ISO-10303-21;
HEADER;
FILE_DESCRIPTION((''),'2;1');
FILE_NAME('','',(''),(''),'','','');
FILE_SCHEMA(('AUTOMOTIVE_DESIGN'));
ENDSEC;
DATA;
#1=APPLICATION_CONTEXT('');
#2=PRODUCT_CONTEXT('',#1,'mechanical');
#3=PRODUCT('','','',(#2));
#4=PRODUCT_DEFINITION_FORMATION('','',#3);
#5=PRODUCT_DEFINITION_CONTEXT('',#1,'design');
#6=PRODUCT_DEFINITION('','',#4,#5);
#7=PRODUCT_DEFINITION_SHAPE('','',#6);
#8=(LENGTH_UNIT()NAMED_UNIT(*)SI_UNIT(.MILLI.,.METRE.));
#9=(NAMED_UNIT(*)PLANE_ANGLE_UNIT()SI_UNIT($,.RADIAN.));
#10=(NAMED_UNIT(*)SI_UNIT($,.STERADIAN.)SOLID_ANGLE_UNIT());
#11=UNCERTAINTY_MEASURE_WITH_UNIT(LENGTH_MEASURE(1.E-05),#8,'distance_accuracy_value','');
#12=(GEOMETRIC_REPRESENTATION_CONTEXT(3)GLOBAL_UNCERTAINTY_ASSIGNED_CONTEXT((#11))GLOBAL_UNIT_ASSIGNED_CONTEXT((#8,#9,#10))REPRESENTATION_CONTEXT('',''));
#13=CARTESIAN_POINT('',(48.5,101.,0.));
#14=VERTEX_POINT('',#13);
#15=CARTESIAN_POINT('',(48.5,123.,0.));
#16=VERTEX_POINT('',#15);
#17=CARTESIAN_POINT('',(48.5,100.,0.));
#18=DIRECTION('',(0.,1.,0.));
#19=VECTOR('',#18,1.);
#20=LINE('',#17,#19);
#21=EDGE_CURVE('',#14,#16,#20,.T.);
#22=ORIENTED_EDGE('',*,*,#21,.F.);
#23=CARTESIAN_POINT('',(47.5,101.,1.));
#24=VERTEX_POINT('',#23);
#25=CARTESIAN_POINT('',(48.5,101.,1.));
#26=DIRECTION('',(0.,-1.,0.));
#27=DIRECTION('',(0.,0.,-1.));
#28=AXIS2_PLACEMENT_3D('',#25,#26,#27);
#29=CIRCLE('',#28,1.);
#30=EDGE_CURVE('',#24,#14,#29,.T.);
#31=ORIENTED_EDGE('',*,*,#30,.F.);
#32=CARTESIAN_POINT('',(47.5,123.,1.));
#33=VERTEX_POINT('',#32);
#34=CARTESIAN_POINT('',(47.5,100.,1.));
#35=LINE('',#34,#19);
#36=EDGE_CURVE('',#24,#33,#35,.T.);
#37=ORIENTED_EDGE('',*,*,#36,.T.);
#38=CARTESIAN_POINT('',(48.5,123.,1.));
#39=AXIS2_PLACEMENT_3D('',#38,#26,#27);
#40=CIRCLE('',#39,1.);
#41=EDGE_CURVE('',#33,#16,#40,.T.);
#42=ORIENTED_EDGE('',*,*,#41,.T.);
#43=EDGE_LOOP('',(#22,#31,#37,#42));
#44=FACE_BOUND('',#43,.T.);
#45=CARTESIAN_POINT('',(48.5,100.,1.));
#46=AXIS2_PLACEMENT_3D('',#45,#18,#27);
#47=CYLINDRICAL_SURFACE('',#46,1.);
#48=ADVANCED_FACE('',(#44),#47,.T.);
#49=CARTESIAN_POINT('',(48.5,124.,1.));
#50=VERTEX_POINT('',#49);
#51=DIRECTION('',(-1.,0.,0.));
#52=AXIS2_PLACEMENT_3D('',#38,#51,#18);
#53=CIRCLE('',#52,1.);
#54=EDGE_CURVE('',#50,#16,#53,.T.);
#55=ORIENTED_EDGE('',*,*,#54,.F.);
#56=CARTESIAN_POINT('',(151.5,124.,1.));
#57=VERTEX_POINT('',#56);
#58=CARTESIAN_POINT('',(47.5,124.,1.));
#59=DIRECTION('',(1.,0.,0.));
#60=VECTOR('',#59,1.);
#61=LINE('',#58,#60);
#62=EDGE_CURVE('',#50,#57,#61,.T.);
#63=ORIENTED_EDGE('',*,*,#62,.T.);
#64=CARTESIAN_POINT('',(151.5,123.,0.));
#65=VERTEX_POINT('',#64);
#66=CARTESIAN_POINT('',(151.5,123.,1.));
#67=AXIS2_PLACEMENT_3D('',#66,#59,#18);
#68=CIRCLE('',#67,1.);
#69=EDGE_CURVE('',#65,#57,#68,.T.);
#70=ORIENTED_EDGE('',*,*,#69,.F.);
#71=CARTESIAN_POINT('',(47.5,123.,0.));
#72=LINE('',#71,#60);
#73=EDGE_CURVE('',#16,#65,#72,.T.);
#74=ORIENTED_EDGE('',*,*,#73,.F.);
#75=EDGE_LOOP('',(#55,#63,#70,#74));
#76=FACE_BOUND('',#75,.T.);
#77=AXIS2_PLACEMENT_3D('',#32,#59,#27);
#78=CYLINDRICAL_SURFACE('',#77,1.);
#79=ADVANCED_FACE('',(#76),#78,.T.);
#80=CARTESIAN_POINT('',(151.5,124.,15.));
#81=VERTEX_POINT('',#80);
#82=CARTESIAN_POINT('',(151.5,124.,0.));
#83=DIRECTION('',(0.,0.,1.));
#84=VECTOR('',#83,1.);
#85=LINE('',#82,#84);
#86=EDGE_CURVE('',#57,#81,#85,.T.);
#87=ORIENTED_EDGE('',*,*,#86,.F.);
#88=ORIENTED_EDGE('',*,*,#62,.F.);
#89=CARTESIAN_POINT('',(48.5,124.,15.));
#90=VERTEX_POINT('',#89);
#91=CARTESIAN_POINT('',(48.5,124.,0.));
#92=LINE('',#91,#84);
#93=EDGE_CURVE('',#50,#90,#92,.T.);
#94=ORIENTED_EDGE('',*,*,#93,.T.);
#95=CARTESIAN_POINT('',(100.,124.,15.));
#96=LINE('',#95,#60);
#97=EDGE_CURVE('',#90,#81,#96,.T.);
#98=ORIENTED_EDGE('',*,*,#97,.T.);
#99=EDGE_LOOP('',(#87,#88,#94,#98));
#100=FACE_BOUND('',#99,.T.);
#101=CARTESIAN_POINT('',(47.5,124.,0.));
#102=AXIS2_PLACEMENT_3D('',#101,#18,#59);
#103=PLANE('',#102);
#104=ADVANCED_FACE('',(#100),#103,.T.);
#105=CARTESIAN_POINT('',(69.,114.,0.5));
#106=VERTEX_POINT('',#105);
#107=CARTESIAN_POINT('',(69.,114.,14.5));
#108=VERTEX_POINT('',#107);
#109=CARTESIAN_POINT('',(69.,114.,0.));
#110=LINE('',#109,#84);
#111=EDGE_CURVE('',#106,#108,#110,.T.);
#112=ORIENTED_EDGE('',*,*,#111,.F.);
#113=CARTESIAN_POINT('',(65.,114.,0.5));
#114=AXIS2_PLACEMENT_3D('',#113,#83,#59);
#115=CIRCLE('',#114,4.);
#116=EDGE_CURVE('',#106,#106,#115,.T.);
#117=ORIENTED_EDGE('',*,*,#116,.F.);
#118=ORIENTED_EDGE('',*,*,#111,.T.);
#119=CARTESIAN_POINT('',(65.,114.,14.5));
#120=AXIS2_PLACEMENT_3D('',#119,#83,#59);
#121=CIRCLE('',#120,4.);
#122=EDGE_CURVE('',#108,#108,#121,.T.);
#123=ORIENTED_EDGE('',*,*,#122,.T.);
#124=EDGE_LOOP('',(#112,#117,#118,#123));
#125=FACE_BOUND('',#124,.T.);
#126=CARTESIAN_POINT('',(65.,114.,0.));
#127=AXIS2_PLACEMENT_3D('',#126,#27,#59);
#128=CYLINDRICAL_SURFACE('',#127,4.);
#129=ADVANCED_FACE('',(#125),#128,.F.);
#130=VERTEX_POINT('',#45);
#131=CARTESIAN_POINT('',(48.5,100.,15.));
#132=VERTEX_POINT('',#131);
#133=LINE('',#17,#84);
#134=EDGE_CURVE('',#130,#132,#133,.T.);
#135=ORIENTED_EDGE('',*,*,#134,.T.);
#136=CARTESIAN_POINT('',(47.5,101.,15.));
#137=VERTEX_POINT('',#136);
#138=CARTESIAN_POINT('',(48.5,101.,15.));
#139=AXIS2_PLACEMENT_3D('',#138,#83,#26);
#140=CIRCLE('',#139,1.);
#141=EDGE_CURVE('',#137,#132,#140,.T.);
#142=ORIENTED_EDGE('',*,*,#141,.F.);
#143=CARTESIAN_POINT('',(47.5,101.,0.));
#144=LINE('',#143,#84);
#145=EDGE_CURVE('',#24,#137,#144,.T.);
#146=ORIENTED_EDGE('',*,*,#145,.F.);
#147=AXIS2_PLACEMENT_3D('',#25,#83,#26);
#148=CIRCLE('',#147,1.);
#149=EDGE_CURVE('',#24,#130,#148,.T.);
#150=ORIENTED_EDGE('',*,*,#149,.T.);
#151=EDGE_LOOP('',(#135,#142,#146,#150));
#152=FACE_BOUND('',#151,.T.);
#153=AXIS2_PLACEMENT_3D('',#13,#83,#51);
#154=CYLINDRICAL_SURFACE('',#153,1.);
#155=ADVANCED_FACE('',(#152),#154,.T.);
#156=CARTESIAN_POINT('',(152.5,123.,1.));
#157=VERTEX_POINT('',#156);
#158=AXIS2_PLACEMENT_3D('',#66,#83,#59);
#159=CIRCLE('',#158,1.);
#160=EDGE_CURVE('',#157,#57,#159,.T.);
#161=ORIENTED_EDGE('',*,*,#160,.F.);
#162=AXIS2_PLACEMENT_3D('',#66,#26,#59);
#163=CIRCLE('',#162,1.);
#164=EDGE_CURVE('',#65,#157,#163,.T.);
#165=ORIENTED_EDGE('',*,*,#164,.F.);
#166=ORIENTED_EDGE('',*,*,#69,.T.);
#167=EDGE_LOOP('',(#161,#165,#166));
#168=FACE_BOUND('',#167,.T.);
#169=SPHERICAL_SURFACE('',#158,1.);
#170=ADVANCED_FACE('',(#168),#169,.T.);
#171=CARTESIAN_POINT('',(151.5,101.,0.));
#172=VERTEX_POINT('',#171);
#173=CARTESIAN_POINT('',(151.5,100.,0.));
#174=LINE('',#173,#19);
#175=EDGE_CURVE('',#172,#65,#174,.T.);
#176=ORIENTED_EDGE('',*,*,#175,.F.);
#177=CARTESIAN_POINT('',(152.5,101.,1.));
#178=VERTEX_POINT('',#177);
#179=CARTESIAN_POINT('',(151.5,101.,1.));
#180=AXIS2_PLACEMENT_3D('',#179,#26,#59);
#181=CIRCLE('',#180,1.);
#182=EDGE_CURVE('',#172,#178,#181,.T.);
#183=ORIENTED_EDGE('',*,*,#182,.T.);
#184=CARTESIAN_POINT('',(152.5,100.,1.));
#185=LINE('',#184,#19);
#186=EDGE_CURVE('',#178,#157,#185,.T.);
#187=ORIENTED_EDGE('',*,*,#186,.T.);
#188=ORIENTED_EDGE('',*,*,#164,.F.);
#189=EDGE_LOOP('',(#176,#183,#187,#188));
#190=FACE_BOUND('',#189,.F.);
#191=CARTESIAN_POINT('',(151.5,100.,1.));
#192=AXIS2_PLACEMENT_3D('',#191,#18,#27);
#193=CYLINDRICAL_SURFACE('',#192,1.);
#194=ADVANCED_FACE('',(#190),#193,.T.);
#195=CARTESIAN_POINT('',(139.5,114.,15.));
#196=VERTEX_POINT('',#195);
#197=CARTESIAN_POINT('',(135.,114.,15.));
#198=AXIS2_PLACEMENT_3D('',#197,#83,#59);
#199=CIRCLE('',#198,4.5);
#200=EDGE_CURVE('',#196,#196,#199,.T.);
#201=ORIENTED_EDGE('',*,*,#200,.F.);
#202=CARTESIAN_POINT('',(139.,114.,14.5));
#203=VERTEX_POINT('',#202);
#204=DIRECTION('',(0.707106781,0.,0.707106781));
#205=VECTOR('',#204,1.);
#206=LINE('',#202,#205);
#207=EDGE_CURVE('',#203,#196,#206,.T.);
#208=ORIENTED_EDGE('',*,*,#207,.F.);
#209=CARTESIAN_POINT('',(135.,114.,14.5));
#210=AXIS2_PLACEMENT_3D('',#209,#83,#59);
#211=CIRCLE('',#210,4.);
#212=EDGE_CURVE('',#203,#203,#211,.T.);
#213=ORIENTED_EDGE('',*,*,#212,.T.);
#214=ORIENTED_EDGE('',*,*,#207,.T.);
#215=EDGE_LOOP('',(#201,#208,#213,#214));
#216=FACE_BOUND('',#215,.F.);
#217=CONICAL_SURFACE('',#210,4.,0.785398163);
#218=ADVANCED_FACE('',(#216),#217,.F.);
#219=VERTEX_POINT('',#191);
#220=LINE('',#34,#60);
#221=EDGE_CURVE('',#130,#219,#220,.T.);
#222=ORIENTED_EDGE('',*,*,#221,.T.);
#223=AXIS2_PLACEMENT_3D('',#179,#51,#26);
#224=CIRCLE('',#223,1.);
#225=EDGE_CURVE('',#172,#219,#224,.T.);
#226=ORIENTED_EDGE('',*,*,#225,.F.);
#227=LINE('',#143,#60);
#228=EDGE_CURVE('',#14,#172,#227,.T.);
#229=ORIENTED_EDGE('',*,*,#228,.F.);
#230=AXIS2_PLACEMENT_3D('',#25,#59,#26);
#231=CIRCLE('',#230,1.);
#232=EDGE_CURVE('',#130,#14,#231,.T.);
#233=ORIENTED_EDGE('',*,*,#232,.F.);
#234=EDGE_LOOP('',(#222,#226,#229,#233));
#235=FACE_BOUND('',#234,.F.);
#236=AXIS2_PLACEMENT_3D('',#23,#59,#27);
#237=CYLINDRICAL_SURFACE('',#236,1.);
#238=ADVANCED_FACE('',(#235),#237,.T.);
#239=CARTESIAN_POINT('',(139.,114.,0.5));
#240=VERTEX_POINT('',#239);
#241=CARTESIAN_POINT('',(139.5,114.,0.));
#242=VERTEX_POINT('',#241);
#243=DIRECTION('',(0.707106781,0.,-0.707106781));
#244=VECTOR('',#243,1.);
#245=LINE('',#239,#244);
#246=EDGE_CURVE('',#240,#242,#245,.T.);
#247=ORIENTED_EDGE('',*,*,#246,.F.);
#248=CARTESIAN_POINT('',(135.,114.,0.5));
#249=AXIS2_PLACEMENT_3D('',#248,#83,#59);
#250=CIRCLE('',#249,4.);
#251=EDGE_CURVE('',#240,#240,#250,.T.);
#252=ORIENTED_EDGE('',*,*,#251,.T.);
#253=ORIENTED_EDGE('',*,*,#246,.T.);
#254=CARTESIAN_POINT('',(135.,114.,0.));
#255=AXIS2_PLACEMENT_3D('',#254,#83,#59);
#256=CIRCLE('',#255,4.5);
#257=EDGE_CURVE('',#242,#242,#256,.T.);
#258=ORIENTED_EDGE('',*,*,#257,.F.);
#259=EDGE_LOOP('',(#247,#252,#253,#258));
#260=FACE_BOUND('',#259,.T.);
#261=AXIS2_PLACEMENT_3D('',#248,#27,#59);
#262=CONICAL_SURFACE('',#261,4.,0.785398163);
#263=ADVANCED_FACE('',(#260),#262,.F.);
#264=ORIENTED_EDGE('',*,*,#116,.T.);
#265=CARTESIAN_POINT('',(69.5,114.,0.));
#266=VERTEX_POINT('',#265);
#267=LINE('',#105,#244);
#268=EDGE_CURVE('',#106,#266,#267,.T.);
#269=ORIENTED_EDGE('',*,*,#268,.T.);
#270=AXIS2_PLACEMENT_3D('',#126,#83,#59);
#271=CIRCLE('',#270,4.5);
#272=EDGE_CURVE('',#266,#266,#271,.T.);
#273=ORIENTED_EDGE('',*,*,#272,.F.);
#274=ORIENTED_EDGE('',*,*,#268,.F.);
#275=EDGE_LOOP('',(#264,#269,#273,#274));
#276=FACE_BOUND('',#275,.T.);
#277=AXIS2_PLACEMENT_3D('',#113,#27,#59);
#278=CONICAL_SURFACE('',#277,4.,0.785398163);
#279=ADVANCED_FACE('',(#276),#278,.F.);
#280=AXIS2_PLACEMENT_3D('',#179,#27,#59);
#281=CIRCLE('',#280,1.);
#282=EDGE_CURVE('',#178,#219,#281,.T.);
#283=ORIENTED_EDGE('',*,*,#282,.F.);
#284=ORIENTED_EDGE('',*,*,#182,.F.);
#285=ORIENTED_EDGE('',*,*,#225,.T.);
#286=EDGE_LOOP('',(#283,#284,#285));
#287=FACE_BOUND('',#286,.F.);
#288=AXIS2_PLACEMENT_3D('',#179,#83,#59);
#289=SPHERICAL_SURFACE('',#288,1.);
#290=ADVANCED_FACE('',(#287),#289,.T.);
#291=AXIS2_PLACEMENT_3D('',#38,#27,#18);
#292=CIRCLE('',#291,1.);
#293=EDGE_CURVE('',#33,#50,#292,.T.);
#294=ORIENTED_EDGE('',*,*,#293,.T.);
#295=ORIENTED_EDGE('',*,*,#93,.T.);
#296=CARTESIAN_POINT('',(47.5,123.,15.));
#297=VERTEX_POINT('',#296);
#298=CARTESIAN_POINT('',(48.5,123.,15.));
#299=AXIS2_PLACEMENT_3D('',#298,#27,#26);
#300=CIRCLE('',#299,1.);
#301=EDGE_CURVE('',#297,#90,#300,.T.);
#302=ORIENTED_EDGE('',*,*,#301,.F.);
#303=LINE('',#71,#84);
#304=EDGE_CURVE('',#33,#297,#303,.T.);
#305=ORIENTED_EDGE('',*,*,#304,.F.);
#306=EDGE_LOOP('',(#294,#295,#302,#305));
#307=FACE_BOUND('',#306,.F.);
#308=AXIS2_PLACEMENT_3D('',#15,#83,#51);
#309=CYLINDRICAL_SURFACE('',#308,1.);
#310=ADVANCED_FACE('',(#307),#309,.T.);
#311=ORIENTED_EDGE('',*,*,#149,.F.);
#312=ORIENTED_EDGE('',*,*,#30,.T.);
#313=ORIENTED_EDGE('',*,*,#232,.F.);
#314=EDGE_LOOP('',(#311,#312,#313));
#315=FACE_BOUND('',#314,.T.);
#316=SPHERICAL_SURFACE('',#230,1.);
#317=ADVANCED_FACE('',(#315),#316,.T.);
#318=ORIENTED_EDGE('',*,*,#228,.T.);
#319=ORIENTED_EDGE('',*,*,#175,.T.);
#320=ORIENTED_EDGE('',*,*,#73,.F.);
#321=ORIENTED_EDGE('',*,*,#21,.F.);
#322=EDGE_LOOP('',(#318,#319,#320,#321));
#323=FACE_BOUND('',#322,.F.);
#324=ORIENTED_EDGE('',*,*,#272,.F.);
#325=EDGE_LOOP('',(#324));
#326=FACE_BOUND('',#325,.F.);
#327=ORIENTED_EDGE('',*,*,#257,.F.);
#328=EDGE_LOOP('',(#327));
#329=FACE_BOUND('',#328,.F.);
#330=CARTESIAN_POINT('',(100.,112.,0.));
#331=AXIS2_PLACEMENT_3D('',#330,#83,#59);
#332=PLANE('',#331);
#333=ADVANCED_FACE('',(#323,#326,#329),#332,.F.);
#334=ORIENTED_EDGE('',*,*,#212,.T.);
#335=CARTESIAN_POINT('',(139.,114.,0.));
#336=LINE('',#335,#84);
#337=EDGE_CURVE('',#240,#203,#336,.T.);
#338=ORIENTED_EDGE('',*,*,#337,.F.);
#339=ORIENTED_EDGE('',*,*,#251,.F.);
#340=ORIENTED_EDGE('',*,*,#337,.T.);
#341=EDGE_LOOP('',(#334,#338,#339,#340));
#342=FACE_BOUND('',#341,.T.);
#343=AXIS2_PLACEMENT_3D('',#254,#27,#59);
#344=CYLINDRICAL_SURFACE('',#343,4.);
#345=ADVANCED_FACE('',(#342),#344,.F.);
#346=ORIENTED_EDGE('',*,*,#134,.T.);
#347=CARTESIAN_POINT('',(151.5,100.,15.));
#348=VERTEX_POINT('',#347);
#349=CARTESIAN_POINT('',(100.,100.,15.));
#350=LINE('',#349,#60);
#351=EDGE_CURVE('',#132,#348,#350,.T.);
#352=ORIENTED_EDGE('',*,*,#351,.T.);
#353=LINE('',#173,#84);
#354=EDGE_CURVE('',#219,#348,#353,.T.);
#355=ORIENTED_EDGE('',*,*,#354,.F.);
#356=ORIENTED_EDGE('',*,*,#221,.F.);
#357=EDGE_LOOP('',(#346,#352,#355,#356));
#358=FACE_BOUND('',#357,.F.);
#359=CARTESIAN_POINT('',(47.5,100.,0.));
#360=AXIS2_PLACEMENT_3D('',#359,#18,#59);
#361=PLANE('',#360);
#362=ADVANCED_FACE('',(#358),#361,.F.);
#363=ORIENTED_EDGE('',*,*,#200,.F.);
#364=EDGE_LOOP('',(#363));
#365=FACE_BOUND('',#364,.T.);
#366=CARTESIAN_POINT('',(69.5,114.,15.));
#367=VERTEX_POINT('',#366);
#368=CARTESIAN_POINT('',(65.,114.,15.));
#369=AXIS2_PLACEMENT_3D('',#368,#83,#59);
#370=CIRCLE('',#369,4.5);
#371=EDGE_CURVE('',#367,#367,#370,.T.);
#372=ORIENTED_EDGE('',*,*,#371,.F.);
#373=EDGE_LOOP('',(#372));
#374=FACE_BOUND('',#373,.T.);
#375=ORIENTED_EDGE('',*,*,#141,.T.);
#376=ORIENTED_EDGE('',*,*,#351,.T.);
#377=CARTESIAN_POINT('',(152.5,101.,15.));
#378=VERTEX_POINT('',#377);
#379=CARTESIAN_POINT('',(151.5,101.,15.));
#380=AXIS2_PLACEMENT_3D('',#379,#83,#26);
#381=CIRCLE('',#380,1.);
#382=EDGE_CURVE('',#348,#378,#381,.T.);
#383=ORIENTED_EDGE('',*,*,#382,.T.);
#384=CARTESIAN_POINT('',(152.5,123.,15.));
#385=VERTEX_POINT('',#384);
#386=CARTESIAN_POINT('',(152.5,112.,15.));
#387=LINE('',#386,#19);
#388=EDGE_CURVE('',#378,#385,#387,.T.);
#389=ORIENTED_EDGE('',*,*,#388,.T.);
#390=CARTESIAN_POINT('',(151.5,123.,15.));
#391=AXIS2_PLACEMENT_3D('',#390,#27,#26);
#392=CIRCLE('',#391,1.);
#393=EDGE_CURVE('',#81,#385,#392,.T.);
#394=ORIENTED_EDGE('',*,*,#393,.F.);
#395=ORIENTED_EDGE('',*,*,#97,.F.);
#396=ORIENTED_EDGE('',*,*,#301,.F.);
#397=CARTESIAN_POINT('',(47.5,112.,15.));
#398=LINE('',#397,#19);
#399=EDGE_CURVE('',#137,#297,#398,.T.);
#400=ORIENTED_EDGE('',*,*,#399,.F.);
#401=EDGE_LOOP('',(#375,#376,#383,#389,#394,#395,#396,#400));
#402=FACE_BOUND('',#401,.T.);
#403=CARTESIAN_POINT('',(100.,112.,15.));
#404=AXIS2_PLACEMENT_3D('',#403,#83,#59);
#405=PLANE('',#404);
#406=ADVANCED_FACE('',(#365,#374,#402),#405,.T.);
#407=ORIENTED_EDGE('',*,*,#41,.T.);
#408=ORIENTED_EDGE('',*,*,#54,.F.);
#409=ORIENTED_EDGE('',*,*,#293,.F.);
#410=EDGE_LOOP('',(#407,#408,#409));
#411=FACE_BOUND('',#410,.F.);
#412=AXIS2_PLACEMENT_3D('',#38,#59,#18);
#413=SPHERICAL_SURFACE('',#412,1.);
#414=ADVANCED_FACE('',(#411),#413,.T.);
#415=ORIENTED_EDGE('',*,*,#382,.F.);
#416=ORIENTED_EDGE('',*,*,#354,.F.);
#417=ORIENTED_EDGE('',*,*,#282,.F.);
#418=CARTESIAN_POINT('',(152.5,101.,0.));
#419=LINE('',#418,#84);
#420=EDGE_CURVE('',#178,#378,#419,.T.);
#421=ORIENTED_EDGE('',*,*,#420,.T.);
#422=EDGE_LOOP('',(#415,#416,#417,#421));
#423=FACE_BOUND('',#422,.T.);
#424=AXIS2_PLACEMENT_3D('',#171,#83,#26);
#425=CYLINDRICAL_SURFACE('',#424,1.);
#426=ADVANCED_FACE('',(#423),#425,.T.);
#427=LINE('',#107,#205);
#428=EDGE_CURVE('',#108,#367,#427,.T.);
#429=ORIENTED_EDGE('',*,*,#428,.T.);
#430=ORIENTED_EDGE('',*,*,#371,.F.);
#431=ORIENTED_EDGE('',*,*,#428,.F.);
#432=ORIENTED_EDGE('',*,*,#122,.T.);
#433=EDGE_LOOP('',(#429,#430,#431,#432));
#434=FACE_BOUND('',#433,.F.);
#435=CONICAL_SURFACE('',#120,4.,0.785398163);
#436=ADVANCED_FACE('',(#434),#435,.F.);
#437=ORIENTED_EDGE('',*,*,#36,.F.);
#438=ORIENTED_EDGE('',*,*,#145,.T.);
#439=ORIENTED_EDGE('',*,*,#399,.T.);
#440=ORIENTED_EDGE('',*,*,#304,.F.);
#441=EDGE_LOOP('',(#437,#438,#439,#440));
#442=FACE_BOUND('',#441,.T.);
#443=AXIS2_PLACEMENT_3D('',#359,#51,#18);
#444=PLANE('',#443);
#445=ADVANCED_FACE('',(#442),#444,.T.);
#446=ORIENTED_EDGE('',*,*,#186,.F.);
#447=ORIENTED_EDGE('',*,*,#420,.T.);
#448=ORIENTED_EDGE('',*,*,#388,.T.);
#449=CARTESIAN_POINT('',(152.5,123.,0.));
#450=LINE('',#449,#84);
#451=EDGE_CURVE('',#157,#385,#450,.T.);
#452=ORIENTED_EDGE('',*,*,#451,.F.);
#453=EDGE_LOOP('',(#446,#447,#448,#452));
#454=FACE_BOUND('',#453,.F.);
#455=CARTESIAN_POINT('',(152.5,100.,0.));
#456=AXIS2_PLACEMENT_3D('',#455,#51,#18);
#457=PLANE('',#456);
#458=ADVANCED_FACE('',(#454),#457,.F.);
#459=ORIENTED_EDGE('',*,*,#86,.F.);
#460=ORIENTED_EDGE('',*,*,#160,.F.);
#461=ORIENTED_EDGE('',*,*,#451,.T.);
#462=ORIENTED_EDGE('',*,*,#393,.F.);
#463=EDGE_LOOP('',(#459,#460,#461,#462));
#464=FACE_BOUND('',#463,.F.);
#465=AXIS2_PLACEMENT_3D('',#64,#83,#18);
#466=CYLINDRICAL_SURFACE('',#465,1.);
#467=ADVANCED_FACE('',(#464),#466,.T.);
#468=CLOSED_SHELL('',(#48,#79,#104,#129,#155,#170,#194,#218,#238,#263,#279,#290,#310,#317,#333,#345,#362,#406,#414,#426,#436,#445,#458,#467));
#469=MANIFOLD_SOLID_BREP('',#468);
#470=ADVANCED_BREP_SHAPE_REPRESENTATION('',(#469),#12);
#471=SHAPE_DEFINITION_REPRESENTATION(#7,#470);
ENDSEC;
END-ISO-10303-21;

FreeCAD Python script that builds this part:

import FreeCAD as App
import Part
import Sketcher

V = App.Vector
Q = App.Units.Quantity


def edges_at(feature, points):
    """Names of the edges that pass closest to the given points."""
    edges = feature.Shape.Edges
    near = lambda p: min(range(len(edges)), key=lambda i: edges[i].distToShape(Part.Vertex(*p))[0])
    return sorted({f"Edge{near(p) + 1}" for p in points})

doc = App.newDocument("Part")
params = doc.addObject("Spreadsheet::Sheet", "Params")
for row, (alias, value) in enumerate([
    ("sketch1_diameter", "8 mm"),
    ("sketch1_width", "105 mm"),
    ("sketch1_height", "24 mm"),
    ("pad1_length", "15 mm"),
    ("chamfer_size", "0.5 mm"),
    ("fillet_radius", "1 mm"),
], start=1):
    params.set(f"A{row}", alias)
    params.set(f"B{row}", "=" + value)
    params.setAlias(f"B{row}", alias)

body = doc.addObject("PartDesign::Body", "Body")

sketch1 = body.newObject("Sketcher::SketchObject", "Sketch")
sketch1.AttachmentSupport = (doc.getObject("XY_Plane"), [""])
sketch1.MapMode = "FlatFace"
sketch1.addGeometry([
    Part.LineSegment(V(47.5, 124, 0), V(47.5, 100, 0)),
    Part.LineSegment(V(47.5, 100, 0), V(152.5, 100, 0)),
    Part.LineSegment(V(152.5, 100, 0), V(152.5, 124, 0)),
    Part.LineSegment(V(152.5, 124, 0), V(47.5, 124, 0)),
    Part.Circle(V(65, 114, 0), V(0, 0, 1), 4),
    Part.Circle(V(135, 114, 0), V(0, 0, 1), 4),
], False)
sketch1.addConstraint([
    Sketcher.Constraint("Coincident", 0, 2, 1, 1),
    Sketcher.Constraint("Coincident", 1, 2, 2, 1),
    Sketcher.Constraint("Coincident", 2, 2, 3, 1),
    Sketcher.Constraint("Coincident", 3, 2, 0, 1),
    Sketcher.Constraint("Vertical", 0),
    Sketcher.Constraint("Horizontal", 1),
    Sketcher.Constraint("Vertical", 2),
    Sketcher.Constraint("Horizontal", 3),
    Sketcher.Constraint("Equal", 4, 5),
    Sketcher.Constraint("Horizontal", 4, 3, 5, 3),
    Sketcher.Constraint("Diameter", 4, Q("8 mm")),
    Sketcher.Constraint("DistanceX", 1, 1, 1, 2, Q("105 mm")),
    Sketcher.Constraint("DistanceY", 0, 2, 0, 1, Q("24 mm")),
    Sketcher.Constraint("DistanceX", -1, 1, 4, 3, Q("65 mm")),
    Sketcher.Constraint("DistanceY", -1, 1, 4, 3, Q("114 mm")),
    Sketcher.Constraint("DistanceX", -1, 1, 5, 3, Q("135 mm")),
    Sketcher.Constraint("DistanceY", -1, 1, 0, 2, Q("100 mm")),
    Sketcher.Constraint("DistanceX", -1, 1, 0, 2, Q("47.5 mm")),
])
sketch1.setExpression("Constraints[10]", "Params.sketch1_diameter")
sketch1.setExpression("Constraints[11]", "Params.sketch1_width")
sketch1.setExpression("Constraints[12]", "Params.sketch1_height")
pad1 = body.newObject("PartDesign::Pad", "Pad")
pad1.Profile = sketch1
pad1.setExpression("Length", "Params.pad1_length")
doc.recompute()

chamfer = body.newObject("PartDesign::Chamfer", "Chamfer")
chamfer.Base = (pad1, edges_at(pad1, [
    (61, 114, 0),
    (131, 114, 0),
    (131, 114, 15),
    (61, 114, 15),
]))
chamfer.setExpression("Size", "Params.chamfer_size")
doc.recompute()

fillet = body.newObject("PartDesign::Fillet", "Fillet")
fillet.Base = (chamfer, edges_at(chamfer, [
    (152.5, 100, 7.5),
    (152.5, 124, 7.5),
    (152.5, 112, 0),
    (100, 100, 0),
    (100, 124, 0),
    (47.5, 100, 7.5),
    (47.5, 124, 7.5),
    (47.5, 112, 0),
]))
fillet.setExpression("Radius", "Params.fillet_radius")

doc.recompute()
